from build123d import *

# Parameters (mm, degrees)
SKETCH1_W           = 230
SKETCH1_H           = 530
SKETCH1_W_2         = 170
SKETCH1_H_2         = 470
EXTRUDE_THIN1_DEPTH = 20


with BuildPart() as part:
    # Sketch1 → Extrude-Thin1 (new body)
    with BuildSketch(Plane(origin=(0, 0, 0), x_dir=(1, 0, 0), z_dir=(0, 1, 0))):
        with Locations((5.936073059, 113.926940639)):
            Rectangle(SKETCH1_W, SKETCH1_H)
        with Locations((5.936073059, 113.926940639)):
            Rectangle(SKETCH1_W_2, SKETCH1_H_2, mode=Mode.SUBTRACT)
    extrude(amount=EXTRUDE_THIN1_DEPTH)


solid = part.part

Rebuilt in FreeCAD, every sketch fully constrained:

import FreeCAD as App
import Part
import Sketcher
Q = App.Units.Quantity


def add_polygon(sketch, points):
    """Adds a closed chain of lines whose ends are joined by coincident constraints."""
    first, n = sketch.GeometryCount, len(points)
    for a, b in zip(points, points[1:] + points[:1]):
        sketch.addGeometry(Part.LineSegment(App.Vector(*a, 0), App.Vector(*b, 0)), False)
    for i in range(n):
        sketch.addConstraint(Sketcher.Constraint("Coincident", first + i, 2, first + (i + 1) % n, 1))

doc = App.newDocument("Part")
body = doc.addObject("PartDesign::Body", "Body")

sketch1 = body.newObject("Sketcher::SketchObject", "Sketch")
sketch1.AttachmentSupport = (doc.getObject("XZ_Plane"), [""])
sketch1.MapMode = "FlatFace"
add_polygon(sketch1, [(-109, -379), (-109, 151), (121, 151), (121, -379)])
add_polygon(sketch1, [(91, 121), (-79, 121), (-79, -349), (91, -349)])
sketch1.addConstraint([
    Sketcher.Constraint("Vertical", 0),
    Sketcher.Constraint("Horizontal", 1),
    Sketcher.Constraint("Vertical", 2),
    Sketcher.Constraint("Horizontal", 3),
    Sketcher.Constraint("Horizontal", 4),
    Sketcher.Constraint("Vertical", 5),
    Sketcher.Constraint("Horizontal", 6),
    Sketcher.Constraint("Vertical", 7),
    Sketcher.Constraint("DistanceX", 1, 1, 1, 2, Q("230 mm")),
    Sketcher.Constraint("DistanceX", 4, 2, 4, 1, Q("170 mm")),
    Sketcher.Constraint("DistanceY", 0, 1, 0, 2, Q("530 mm")),
    Sketcher.Constraint("DistanceY", 5, 2, 5, 1, Q("470 mm")),
    Sketcher.Constraint("DistanceX", 0, 2, 4, 2, Q("30 mm")),
    Sketcher.Constraint("DistanceY", 4, 2, 0, 2, Q("30 mm")),
    Sketcher.Constraint("DistanceY", -1, 1, 0, 2, Q("151.073059 mm")),
    Sketcher.Constraint("DistanceX", 0, 2, -1, 1, Q("109.063927 mm")),
])
pad1 = body.newObject("PartDesign::Pad", "Pad")
pad1.Profile = sketch1
pad1.Length = 20
pad1.Reversed = True

doc.recompute()
